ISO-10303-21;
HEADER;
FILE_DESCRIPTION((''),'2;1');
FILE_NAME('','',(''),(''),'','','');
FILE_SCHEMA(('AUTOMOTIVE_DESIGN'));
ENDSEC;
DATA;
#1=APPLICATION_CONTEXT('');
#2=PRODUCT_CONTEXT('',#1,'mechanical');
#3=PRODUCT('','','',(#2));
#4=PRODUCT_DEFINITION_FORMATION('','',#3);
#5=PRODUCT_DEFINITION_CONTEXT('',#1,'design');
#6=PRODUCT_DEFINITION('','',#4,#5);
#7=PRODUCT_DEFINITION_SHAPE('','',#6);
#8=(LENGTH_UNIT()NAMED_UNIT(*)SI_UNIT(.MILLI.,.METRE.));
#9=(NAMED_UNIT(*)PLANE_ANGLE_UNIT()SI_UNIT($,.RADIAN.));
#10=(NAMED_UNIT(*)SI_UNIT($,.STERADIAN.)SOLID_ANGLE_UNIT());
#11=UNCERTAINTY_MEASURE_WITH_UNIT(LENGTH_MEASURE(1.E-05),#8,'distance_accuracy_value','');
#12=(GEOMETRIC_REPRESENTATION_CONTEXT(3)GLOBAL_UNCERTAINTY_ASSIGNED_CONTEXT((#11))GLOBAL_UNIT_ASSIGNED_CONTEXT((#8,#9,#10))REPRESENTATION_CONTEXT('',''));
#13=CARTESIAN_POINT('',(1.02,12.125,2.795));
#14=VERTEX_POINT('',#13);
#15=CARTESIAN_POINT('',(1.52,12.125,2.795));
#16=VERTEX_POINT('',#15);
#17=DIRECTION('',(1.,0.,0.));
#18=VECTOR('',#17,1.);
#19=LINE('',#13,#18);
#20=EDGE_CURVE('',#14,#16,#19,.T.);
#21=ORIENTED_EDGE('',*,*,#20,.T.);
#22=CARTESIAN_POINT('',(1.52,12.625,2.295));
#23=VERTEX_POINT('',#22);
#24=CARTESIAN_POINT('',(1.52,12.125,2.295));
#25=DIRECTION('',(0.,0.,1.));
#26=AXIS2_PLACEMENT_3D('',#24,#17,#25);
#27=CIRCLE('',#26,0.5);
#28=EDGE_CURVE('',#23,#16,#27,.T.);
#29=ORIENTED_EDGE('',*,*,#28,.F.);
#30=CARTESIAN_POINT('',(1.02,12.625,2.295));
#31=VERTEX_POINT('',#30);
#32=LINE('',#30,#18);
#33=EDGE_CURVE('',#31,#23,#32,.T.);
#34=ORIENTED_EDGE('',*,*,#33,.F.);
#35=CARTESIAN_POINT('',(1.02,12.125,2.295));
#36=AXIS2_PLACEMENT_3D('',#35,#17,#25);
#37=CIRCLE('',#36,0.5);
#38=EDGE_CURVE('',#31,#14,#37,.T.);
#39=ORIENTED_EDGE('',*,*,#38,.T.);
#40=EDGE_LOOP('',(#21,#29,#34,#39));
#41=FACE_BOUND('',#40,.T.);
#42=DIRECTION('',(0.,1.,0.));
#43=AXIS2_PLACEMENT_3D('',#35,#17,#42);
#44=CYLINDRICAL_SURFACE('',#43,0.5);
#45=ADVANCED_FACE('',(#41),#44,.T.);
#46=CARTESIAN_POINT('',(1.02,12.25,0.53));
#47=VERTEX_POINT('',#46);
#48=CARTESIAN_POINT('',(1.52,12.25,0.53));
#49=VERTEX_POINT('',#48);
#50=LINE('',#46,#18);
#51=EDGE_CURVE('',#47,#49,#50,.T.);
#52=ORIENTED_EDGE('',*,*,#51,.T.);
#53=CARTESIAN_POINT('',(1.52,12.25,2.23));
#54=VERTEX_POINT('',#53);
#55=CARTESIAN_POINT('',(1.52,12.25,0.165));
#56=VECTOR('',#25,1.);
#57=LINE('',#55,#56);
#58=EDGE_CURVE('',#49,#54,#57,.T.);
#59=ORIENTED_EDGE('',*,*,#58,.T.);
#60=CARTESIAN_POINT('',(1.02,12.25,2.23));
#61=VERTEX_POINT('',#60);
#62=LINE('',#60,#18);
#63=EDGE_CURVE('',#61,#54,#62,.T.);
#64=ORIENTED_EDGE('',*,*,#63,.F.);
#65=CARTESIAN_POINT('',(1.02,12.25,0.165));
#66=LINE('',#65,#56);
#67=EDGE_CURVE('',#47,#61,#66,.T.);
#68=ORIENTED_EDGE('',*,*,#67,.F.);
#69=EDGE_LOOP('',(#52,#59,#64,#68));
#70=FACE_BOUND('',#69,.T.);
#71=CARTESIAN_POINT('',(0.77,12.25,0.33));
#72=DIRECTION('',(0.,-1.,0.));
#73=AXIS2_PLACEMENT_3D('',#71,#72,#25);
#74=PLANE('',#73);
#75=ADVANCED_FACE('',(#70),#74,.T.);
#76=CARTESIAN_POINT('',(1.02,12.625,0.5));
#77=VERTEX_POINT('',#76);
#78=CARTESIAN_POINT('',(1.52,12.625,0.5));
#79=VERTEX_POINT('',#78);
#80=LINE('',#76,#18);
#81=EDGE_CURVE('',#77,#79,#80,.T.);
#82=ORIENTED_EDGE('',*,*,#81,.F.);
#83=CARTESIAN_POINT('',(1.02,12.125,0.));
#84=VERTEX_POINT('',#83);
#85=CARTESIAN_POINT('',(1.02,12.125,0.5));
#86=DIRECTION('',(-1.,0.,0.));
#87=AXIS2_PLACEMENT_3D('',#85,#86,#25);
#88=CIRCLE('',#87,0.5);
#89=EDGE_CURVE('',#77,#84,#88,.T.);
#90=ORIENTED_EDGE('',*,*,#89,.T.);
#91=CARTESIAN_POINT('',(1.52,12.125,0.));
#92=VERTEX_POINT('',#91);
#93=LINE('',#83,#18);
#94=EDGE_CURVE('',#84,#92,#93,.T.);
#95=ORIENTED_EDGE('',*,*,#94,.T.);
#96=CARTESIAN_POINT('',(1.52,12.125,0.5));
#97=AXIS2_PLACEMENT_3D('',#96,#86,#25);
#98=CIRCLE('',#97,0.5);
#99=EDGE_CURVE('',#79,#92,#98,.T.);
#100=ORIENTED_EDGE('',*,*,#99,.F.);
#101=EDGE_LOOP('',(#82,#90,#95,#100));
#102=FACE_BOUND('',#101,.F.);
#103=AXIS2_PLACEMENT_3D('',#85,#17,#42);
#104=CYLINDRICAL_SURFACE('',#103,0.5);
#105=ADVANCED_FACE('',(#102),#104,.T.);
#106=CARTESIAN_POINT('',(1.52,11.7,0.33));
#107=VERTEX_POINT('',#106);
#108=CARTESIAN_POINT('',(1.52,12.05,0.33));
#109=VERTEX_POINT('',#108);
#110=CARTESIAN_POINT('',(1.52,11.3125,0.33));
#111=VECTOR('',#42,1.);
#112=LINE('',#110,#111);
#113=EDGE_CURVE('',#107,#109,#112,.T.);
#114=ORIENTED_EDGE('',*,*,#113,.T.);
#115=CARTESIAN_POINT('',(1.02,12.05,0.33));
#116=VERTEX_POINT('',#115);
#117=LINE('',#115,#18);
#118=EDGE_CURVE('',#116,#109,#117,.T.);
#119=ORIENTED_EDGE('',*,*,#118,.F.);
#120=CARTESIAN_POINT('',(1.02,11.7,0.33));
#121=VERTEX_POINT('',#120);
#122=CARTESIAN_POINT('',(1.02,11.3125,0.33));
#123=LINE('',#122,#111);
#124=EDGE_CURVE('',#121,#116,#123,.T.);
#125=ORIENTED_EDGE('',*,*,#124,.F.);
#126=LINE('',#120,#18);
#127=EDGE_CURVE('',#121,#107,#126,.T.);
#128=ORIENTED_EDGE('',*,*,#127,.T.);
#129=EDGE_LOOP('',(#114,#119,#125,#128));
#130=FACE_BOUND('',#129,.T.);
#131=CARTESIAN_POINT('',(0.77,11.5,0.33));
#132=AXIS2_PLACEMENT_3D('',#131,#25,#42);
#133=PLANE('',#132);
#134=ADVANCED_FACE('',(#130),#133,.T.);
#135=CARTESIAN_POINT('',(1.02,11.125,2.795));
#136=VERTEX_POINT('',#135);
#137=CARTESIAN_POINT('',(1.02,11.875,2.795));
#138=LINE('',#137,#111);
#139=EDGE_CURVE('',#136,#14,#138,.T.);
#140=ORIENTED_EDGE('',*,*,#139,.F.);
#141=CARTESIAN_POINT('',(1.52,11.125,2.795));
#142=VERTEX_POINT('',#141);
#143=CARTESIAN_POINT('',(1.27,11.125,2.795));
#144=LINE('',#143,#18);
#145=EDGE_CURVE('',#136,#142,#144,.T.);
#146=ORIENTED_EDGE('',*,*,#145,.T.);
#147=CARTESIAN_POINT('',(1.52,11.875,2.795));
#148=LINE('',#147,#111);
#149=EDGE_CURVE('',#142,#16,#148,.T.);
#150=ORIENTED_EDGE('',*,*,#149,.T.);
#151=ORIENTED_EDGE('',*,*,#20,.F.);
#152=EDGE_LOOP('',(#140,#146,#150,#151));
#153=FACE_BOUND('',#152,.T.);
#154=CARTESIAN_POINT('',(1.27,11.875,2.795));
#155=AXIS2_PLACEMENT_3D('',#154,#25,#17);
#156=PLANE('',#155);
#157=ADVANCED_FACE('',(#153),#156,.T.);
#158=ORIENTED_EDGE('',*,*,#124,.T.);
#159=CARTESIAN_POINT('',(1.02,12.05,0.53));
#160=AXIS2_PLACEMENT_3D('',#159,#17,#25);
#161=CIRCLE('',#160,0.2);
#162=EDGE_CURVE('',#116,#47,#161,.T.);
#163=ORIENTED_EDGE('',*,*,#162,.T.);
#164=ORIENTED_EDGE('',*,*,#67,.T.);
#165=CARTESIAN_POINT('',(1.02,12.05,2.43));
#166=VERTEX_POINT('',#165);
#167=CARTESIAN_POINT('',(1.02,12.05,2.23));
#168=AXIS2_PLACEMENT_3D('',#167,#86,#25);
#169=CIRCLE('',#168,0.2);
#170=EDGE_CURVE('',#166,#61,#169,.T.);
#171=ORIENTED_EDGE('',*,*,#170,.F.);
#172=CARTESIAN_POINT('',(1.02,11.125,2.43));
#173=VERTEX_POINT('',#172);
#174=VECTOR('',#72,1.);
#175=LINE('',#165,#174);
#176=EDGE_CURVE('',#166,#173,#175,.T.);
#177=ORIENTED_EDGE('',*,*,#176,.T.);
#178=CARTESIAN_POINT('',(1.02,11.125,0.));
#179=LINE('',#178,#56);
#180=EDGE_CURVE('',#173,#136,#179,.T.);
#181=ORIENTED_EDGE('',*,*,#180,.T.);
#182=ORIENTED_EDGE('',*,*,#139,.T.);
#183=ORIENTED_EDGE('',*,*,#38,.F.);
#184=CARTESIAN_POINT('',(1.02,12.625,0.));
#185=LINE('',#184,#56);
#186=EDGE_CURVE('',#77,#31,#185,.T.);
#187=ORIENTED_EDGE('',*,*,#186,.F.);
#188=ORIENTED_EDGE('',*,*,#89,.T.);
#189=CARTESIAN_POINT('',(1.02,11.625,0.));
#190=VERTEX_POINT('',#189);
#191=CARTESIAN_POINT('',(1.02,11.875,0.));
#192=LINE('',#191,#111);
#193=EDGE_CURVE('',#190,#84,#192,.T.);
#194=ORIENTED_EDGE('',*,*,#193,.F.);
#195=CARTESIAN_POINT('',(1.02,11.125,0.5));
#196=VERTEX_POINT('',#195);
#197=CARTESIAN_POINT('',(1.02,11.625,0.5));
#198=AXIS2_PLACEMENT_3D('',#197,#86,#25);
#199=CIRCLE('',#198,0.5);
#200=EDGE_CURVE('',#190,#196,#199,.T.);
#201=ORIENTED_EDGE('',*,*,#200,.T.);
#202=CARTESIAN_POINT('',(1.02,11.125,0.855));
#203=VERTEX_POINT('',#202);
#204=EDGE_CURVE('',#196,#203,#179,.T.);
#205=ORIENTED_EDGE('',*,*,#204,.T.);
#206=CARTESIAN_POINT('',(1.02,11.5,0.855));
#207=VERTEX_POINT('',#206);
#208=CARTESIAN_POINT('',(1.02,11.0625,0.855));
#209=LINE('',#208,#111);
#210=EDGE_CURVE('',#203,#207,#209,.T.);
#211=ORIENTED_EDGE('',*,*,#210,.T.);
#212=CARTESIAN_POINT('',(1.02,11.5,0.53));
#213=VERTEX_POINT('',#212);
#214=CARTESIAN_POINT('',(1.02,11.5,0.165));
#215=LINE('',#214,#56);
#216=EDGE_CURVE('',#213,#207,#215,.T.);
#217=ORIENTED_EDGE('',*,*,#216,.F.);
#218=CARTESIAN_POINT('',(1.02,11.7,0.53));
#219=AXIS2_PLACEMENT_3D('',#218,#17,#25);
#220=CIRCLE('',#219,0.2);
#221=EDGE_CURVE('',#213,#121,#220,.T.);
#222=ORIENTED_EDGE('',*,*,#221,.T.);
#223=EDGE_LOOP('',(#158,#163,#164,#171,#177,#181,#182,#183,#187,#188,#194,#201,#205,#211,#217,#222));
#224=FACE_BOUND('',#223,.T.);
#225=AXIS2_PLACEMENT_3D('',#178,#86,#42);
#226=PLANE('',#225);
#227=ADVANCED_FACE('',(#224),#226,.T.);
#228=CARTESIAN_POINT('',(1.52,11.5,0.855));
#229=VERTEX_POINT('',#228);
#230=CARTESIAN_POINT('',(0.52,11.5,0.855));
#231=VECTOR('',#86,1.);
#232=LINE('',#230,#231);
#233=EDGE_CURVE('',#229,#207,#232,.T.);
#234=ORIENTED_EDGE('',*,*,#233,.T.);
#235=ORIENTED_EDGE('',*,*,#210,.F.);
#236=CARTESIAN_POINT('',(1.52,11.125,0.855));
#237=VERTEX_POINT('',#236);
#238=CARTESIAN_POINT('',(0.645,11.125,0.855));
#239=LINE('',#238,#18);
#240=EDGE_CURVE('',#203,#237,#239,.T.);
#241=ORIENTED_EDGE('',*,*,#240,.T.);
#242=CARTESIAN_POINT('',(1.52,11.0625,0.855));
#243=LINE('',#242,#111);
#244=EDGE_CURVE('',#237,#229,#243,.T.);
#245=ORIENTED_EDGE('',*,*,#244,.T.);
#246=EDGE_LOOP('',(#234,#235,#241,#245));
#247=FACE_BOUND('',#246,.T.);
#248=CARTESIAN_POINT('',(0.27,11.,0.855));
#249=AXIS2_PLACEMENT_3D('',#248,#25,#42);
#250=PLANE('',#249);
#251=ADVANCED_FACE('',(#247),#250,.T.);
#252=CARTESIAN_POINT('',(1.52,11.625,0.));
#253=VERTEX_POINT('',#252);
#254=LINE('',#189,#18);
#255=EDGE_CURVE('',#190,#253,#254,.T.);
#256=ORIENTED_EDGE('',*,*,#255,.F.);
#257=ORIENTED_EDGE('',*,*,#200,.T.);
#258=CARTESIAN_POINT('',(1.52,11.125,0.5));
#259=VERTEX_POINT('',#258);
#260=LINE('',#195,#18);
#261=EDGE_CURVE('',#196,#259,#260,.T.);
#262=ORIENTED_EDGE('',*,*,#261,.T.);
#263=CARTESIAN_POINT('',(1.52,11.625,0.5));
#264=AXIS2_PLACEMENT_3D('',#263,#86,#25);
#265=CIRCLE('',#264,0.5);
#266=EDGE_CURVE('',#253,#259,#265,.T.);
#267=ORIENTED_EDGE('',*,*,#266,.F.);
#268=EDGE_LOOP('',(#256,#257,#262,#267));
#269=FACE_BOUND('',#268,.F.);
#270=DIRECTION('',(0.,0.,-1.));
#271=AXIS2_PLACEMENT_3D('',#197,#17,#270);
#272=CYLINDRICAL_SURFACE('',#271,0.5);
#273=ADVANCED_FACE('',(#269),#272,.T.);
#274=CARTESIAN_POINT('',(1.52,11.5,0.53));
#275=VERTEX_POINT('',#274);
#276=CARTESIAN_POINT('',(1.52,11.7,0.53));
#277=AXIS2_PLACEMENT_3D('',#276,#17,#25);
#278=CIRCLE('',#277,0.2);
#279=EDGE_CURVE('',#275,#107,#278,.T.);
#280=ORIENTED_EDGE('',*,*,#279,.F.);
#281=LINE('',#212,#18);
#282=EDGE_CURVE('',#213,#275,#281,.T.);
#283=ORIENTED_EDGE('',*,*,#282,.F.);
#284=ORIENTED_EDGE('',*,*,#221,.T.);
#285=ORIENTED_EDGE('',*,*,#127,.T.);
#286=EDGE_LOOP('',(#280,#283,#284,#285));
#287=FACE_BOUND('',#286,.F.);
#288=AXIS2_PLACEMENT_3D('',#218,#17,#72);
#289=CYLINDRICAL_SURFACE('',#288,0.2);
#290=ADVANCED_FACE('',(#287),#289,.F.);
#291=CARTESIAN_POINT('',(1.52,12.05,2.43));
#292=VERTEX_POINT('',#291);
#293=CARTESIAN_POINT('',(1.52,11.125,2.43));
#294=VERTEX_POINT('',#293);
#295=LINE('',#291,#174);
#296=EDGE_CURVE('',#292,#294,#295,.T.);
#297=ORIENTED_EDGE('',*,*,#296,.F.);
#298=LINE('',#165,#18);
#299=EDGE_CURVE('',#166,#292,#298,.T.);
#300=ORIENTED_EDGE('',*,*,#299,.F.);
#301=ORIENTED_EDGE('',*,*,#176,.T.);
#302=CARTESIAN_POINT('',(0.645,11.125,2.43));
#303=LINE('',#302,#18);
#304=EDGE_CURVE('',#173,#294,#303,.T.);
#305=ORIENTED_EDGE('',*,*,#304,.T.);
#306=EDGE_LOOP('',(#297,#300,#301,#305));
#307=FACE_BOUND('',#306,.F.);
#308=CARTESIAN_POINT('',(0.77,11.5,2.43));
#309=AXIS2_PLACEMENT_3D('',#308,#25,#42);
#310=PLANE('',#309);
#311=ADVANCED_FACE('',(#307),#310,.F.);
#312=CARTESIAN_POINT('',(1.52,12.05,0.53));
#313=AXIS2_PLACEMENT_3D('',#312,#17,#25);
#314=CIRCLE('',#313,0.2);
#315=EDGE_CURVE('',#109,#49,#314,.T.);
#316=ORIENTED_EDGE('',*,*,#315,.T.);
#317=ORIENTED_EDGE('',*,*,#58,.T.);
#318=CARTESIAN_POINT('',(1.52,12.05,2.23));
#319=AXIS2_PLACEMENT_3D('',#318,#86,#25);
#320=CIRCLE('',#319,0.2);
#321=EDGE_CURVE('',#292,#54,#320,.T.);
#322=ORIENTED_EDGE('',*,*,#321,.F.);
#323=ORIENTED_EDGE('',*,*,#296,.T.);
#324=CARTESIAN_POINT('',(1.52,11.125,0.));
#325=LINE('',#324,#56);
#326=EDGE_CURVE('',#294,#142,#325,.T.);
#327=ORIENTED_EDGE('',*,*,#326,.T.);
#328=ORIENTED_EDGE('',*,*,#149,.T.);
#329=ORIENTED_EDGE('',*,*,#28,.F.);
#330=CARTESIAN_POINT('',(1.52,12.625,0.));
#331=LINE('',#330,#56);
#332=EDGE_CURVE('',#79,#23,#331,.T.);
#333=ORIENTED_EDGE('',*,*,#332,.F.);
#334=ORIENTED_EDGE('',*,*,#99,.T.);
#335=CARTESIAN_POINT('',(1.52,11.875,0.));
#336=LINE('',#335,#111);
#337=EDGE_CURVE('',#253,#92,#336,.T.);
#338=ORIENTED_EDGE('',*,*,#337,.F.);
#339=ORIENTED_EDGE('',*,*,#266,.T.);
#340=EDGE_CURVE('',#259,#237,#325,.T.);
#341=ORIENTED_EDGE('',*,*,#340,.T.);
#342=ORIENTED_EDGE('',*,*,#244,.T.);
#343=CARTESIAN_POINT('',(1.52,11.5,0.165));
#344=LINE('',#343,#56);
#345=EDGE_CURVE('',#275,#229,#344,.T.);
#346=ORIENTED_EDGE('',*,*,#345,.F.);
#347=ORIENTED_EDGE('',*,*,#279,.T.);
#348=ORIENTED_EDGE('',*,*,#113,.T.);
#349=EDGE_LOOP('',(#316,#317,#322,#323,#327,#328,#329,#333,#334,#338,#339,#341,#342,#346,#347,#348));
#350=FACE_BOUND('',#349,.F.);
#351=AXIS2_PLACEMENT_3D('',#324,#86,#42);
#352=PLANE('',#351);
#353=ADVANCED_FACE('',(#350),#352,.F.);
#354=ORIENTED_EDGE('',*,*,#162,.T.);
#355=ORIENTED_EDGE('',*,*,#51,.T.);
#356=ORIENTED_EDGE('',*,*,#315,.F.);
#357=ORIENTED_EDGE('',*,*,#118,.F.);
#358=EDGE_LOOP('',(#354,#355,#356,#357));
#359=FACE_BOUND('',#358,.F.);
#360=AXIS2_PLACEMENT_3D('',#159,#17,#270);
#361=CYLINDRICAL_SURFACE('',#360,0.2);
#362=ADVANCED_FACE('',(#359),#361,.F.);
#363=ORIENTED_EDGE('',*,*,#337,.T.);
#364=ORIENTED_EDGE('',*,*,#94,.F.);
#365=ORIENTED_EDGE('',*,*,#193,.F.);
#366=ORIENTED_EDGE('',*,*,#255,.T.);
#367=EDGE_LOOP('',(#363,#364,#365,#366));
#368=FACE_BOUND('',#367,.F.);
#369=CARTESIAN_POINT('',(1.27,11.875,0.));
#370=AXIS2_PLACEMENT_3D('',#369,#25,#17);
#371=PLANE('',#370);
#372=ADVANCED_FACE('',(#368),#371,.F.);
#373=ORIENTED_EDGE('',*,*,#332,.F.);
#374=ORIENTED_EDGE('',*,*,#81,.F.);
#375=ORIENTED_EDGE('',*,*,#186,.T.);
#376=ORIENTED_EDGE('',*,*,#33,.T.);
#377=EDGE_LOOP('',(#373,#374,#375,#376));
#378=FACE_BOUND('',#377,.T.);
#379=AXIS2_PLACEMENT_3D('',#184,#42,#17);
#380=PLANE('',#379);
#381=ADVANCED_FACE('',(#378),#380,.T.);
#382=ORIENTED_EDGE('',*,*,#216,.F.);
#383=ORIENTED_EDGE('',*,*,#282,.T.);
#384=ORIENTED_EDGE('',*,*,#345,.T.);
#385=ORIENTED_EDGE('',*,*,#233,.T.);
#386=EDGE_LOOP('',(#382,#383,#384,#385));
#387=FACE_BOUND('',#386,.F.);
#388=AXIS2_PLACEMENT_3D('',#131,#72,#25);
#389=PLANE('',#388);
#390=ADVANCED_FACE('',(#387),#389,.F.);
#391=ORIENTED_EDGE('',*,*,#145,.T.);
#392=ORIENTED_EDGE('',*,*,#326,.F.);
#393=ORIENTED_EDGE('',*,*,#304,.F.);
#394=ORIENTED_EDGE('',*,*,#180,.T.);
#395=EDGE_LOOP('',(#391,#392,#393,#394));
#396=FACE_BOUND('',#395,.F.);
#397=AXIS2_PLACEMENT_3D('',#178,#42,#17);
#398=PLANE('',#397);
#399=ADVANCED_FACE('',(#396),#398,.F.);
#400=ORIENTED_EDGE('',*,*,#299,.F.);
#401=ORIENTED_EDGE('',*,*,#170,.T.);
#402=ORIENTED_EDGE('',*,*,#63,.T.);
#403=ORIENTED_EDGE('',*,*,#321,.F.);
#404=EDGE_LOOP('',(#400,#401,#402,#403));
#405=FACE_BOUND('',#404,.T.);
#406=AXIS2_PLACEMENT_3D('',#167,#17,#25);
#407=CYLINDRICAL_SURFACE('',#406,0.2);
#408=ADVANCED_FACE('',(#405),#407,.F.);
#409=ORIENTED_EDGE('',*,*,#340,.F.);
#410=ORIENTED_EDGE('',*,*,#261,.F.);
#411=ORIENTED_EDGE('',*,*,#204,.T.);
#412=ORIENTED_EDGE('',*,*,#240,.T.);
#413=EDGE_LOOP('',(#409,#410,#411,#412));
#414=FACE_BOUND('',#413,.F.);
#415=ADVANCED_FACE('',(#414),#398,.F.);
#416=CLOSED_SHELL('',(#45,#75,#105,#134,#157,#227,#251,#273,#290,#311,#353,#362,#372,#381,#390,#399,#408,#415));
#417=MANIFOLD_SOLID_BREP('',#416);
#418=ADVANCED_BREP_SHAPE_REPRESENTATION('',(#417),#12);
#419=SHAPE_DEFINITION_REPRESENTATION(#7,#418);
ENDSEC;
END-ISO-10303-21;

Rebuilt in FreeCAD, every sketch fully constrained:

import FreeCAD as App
import Part
import Sketcher
Q = App.Units.Quantity


def edges_at(feature, points):
    """Names of the edges that pass closest to the given points."""
    edges = feature.Shape.Edges
    near = lambda p: min(range(len(edges)), key=lambda i: edges[i].distToShape(Part.Vertex(*p))[0])
    return sorted({f"Edge{near(p) + 1}" for p in points})

doc = App.newDocument("Part")
body = doc.addObject("PartDesign::Body", "Body")

sketch1 = body.newObject("Sketcher::SketchObject", "Sketch")
sketch1.AttachmentSupport = (doc.getObject("XY_Plane"), [""])
sketch1.MapMode = "FlatFace"
sketch1.addGeometry([
    Part.LineSegment(App.Vector(-0.25, 12.625, 0), App.Vector(-0.25, 11.125, 0)),
    Part.LineSegment(App.Vector(-0.25, 11.125, 0), App.Vector(0.25, 11.125, 0)),
    Part.LineSegment(App.Vector(0.25, 11.125, 0), App.Vector(0.25, 12.625, 0)),
    Part.LineSegment(App.Vector(0.25, 12.625, 0), App.Vector(-0.25, 12.625, 0)),
], False)
sketch1.addConstraint([
    Sketcher.Constraint("Coincident", 0, 2, 1, 1),
    Sketcher.Constraint("Coincident", 1, 2, 2, 1),
    Sketcher.Constraint("Coincident", 2, 2, 3, 1),
    Sketcher.Constraint("Coincident", 3, 2, 0, 1),
    Sketcher.Constraint("Vertical", 0),
    Sketcher.Constraint("Horizontal", 1),
    Sketcher.Constraint("Vertical", 2),
    Sketcher.Constraint("Horizontal", 3),
    Sketcher.Constraint("DistanceX", 1, 1, 1, 2, Q("0.5 mm")),
    Sketcher.Constraint("DistanceY", 0, 2, 0, 1, Q("1.5 mm")),
    Sketcher.Constraint("DistanceX", 0, 2, -1, 1, Q("0.25 mm")),
    Sketcher.Constraint("DistanceY", -1, 1, 0, 2, Q("11.125 mm")),
])
pad1 = body.newObject("PartDesign::Pad", "Pad")
pad1.Profile = sketch1
pad1.Length = 2.795
doc.recompute()

fillet = body.newObject("PartDesign::Fillet", "Fillet")
fillet.Base = (pad1, edges_at(pad1, [(0, 12.625, 0)]))
fillet.Radius = 0.5
doc.recompute()

fillet2 = body.newObject("PartDesign::Fillet", "Fillet001")
fillet2.Base = (fillet, edges_at(fillet, [(0, 12.625, 2.795)]))
fillet2.Radius = 0.5
doc.recompute()

fillet3 = body.newObject("PartDesign::Fillet", "Fillet002")
fillet3.Base = (fillet2, edges_at(fillet2, [(0, 11.125, 0)]))
fillet3.Radius = 0.5

sketch2 = body.newObject("Sketcher::SketchObject", "Sketch001")
sketch2.AttachmentSupport = (doc.getObject("YZ_Plane"), [""])
sketch2.MapMode = "FlatFace"
sketch2.AttachmentOffset = App.Placement(App.Vector(0, 0, -0.5), App.Rotation())
sketch2.addGeometry([
    Part.LineSegment(App.Vector(11.5, 2.43, 0), App.Vector(11.5, 0.33, 0)),
    Part.LineSegment(App.Vector(11.5, 0.33, 0), App.Vector(12.25, 0.33, 0)),
    Part.LineSegment(App.Vector(12.25, 0.33, 0), App.Vector(12.25, 2.43, 0)),
    Part.LineSegment(App.Vector(12.25, 2.43, 0), App.Vector(11.5, 2.43, 0)),
], False)
sketch2.addConstraint([
    Sketcher.Constraint("Coincident", 0, 2, 1, 1),
    Sketcher.Constraint("Coincident", 1, 2, 2, 1),
    Sketcher.Constraint("Coincident", 2, 2, 3, 1),
    Sketcher.Constraint("Coincident", 3, 2, 0, 1),
    Sketcher.Constraint("Vertical", 0),
    Sketcher.Constraint("Horizontal", 1),
    Sketcher.Constraint("Vertical", 2),
    Sketcher.Constraint("Horizontal", 3),
    Sketcher.Constraint("DistanceY", 0, 2, 0, 1, Q("2.1 mm")),
    Sketcher.Constraint("DistanceX", 1, 1, 1, 2, Q("0.75 mm")),
    Sketcher.Constraint("DistanceX", -1, 1, 0, 2, Q("11.5 mm")),
    Sketcher.Constraint("DistanceY", -1, 1, 0, 2, Q("0.33 mm")),
])
pocket1 = body.newObject("PartDesign::Pocket", "Pocket")
pocket1.Profile = sketch2
pocket1.Length = 1
pocket1.Reversed = True
doc.recompute()

fillet4 = body.newObject("PartDesign::Fillet", "Fillet003")
fillet4.Base = (pocket1, edges_at(pocket1, [(0, 11.5, 0.33)]))
fillet4.Radius = 0.2
doc.recompute()

fillet5 = body.newObject("PartDesign::Fillet", "Fillet004")
fillet5.Base = (fillet4, edges_at(fillet4, [(0, 12.25, 0.33)]))
fillet5.Radius = 0.2
doc.recompute()

fillet6 = body.newObject("PartDesign::Fillet", "Fillet005")
fillet6.Base = (fillet5, edges_at(fillet5, [(0, 11.5, 2.43)]))
fillet6.Radius = 0.2
doc.recompute()

fillet7 = body.newObject("PartDesign::Fillet", "Fillet006")
fillet7.Base = (fillet6, edges_at(fillet6, [(0, 12.25, 2.43)]))
fillet7.Radius = 0.2

sketch3 = body.newObject("Sketcher::SketchObject", "Sketch002")
sketch3.AttachmentSupport = (doc.getObject("YZ_Plane"), [""])
sketch3.MapMode = "FlatFace"
sketch3.AttachmentOffset = App.Placement(App.Vector(0, 0, -1), App.Rotation())
sketch3.addGeometry([
    Part.LineSegment(App.Vector(11, 2.43, 0), App.Vector(11, 0.855, 0)),
    Part.LineSegment(App.Vector(11, 0.855, 0), App.Vector(12, 0.855, 0)),
    Part.LineSegment(App.Vector(12, 0.855, 0), App.Vector(12, 2.43, 0)),
    Part.LineSegment(App.Vector(12, 2.43, 0), App.Vector(11, 2.43, 0)),
], False)
sketch3.addConstraint([
    Sketcher.Constraint("Coincident", 0, 2, 1, 1),
    Sketcher.Constraint("Coincident", 1, 2, 2, 1),
    Sketcher.Constraint("Coincident", 2, 2, 3, 1),
    Sketcher.Constraint("Coincident", 3, 2, 0, 1),
    Sketcher.Constraint("Vertical", 0),
    Sketcher.Constraint("Horizontal", 1),
    Sketcher.Constraint("Vertical", 2),
    Sketcher.Constraint("Horizontal", 3),
    Sketcher.Constraint("DistanceX", 1, 1, 1, 2, Q("1 mm")),
    Sketcher.Constraint("DistanceX", -1, 1, 0, 2, Q("11 mm")),
    Sketcher.Constraint("DistanceY", 0, 2, 0, 1, Q("1.575 mm")),
    Sketcher.Constraint("DistanceY", -1, 1, 2, 2, Q("2.43 mm")),
])
pocket2 = body.newObject("PartDesign::Pocket", "Pocket001")
pocket2.Profile = sketch3
pocket2.Length = 3
pocket2.Reversed = True
body2 = doc.addObject("PartDesign::Body", "Body001")
doc.recompute()

body.Placement = App.Placement(App.Vector(1.27, 0, 0), App.Rotation(App.Vector(0, 0, 1), 0))
boolean = body2.newObject("PartDesign::Boolean", "Boolean")
boolean.Type = "Fuse"
boolean.addObjects([body])

doc.recompute()
